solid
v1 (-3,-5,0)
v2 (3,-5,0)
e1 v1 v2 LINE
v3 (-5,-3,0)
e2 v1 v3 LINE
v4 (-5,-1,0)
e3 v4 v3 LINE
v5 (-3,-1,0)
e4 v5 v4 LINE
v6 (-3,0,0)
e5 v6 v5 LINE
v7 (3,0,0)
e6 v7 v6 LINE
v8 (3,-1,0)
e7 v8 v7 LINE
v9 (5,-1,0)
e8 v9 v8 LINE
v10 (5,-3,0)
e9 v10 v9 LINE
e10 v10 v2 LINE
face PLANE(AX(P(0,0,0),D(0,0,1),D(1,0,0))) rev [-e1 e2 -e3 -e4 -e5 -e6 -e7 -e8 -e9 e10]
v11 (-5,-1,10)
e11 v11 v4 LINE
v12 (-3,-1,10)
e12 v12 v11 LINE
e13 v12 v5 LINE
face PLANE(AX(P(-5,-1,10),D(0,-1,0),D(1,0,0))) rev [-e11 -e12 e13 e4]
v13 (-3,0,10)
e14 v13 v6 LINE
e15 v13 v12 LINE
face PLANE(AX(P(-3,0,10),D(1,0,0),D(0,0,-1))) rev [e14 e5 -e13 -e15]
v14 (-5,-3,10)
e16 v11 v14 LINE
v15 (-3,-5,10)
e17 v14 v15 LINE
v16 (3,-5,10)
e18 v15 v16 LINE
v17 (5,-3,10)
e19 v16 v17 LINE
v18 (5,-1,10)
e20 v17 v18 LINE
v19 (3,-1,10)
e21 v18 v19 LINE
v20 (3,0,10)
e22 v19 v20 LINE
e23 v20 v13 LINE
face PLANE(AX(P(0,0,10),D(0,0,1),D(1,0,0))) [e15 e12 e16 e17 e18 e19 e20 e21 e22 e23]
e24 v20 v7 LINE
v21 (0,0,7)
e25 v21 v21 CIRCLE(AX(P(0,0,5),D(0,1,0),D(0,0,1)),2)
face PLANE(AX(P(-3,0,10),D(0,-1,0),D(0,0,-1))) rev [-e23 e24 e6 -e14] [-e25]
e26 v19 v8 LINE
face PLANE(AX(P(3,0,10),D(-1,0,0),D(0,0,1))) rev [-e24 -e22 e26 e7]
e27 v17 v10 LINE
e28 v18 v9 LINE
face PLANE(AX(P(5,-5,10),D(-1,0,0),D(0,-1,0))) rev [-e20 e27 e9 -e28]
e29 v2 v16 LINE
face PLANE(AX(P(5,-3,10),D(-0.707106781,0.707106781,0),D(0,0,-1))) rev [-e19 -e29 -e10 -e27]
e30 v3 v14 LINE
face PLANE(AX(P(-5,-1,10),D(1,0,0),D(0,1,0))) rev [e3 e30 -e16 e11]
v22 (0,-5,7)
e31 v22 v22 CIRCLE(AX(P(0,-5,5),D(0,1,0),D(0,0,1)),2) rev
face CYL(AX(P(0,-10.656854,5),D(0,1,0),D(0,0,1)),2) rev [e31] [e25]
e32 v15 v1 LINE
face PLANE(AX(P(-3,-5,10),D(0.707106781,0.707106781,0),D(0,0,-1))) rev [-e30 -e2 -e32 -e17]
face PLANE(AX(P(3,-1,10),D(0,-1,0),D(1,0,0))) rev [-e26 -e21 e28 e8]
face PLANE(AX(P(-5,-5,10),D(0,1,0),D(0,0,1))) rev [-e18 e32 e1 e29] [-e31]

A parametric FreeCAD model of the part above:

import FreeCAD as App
import Part
import Sketcher


def edges_at(feature, points):
    """Names of the edges that pass closest to the given points."""
    edges = feature.Shape.Edges
    near = lambda p: min(range(len(edges)), key=lambda i: edges[i].distToShape(Part.Vertex(*p))[0])
    return sorted({f"Edge{near(p) + 1}" for p in points})

doc = App.newDocument("Part")
body = doc.addObject("PartDesign::Body", "Body")

sketch1 = body.newObject("Sketcher::SketchObject", "Sketch")
sketch1.AttachmentSupport = (doc.getObject("XY_Plane"), [""])
sketch1.MapMode = "FlatFace"
sketch1.addGeometry([
    Part.LineSegment(App.Vector(3, 0, 0), App.Vector(-3, 0, 0)),
    Part.LineSegment(App.Vector(-3, 0, 0), App.Vector(-3, -1, 0)),
    Part.LineSegment(App.Vector(-3, -1, 0), App.Vector(-5, -1, 0)),
    Part.LineSegment(App.Vector(-5, -1, 0), App.Vector(-5, -5, 0)),
    Part.LineSegment(App.Vector(-5, -5, 0), App.Vector(5, -5, 0)),
    Part.LineSegment(App.Vector(5, -5, 0), App.Vector(5, -1, 0)),
    Part.LineSegment(App.Vector(5, -1, 0), App.Vector(3, -1, 0)),
    Part.LineSegment(App.Vector(3, -1, 0), App.Vector(3, 0, 0)),
], False)
sketch1.addConstraint([
    Sketcher.Constraint("Coincident", 0, 2, 1, 1),
    Sketcher.Constraint("Coincident", 1, 2, 2, 1),
    Sketcher.Constraint("Coincident", 2, 2, 3, 1),
    Sketcher.Constraint("Coincident", 3, 2, 4, 1),
    Sketcher.Constraint("Coincident", 4, 2, 5, 1),
    Sketcher.Constraint("Coincident", 5, 2, 6, 1),
    Sketcher.Constraint("Coincident", 6, 2, 7, 1),
    Sketcher.Constraint("Coincident", 7, 2, 0, 1),
    Sketcher.Constraint("Horizontal", 0),
    Sketcher.Constraint("Vertical", 1),
    Sketcher.Constraint("Horizontal", 2),
    Sketcher.Constraint("Vertical", 3),
    Sketcher.Constraint("Horizontal", 4),
    Sketcher.Constraint("Vertical", 5),
    Sketcher.Constraint("Horizontal", 6),
    Sketcher.Constraint("Vertical", 7),
    Sketcher.Constraint("Symmetric", 0, 2, 7, 2, -1, 1),
    Sketcher.Constraint("Symmetric", 2, 2, 5, 2, -2),
    Sketcher.Constraint("DistanceX", 0, 2, 0, 1, 6.0),
    Sketcher.Constraint("DistanceX", 2, 2, 2, 1, 2.0),
    Sketcher.Constraint("DistanceY", 1, 2, 1, 1, 1.0),
    Sketcher.Constraint("DistanceY", 3, 2, 3, 1, 4.0),
])
pad1 = body.newObject("PartDesign::Pad", "Pad")
pad1.Profile = sketch1
pad1.Length = 10
doc.recompute()

chamfer = body.newObject("PartDesign::Chamfer", "Chamfer")
chamfer.Base = (pad1, edges_at(pad1, [(5, -5, 5), (-5, -5, 5)]))
chamfer.Size = 2

sketch2 = body.newObject("Sketcher::SketchObject", "Sketch001")
sketch2.AttachmentSupport = (doc.getObject("XZ_Plane"), [""])
sketch2.MapMode = "FlatFace"
sketch2.addGeometry(Part.Circle(App.Vector(0, 5, 0), App.Vector(0, 0, 1), 2), False)
sketch2.addConstraint([
    Sketcher.Constraint("PointOnObject", 0, 3, -2),
    Sketcher.Constraint("Diameter", 0, 4.0),
    Sketcher.Constraint("DistanceY", -1, 1, 0, 3, 5.0),
])
pocket1 = body.newObject("PartDesign::Pocket", "Pocket")
pocket1.Profile = sketch2
pocket1.Length = 5
pocket1.Reversed = True

doc.recompute()
